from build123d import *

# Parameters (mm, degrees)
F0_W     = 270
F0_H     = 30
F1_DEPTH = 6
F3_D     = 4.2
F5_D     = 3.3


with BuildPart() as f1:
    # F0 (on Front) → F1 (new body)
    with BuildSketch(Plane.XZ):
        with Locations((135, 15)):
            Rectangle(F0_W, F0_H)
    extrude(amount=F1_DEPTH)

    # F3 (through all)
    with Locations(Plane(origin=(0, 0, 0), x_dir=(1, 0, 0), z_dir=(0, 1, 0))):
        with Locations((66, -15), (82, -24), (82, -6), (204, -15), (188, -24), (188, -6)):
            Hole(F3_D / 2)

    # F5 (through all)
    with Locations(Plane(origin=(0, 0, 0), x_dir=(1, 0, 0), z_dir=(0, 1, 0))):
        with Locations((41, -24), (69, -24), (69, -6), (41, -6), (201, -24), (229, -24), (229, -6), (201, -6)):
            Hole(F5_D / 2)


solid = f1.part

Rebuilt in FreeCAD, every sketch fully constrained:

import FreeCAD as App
import Part
import Sketcher
from FreeCAD import Vector


def add_polygon(sketch, points):
    """Adds a closed chain of lines whose ends are joined by coincident constraints."""
    first, n = sketch.GeometryCount, len(points)
    for a, b in zip(points, points[1:] + points[:1]):
        sketch.addGeometry(Part.LineSegment(App.Vector(*a, 0), App.Vector(*b, 0)), False)
    for i in range(n):
        sketch.addConstraint(Sketcher.Constraint("Coincident", first + i, 2, first + (i + 1) % n, 1))

doc = App.newDocument("Part")
body = doc.addObject("PartDesign::Body", "Body")

sketch1 = doc.addObject("Sketcher::SketchObject", "Sketch")
body.addObject(sketch1)
sketch1.AttachmentSupport = (doc.XZ_Plane, [""])
sketch1.MapMode = "FlatFace"
add_polygon(sketch1, [(0, 30), (0, 0), (270, 0), (270, 30)])
sketch1.addConstraint(Sketcher.Constraint("Vertical", 0))
sketch1.addConstraint(Sketcher.Constraint("Horizontal", 1))
sketch1.addConstraint(Sketcher.Constraint("Vertical", 2))
sketch1.addConstraint(Sketcher.Constraint("Horizontal", 3))
sketch1.addConstraint(Sketcher.Constraint("Coincident", 0, 2, -1, 1))
sketch1.addConstraint(Sketcher.Constraint("DistanceX", 1, 1, 1, 2, 270.0))
sketch1.addConstraint(Sketcher.Constraint("DistanceY", 0, 2, 0, 1, 30.0))
pad1 = doc.addObject("PartDesign::Pad", "Pad")
body.addObject(pad1)
pad1.Profile = sketch1
pad1.Length = 6

sketch2 = doc.addObject("Sketcher::SketchObject", "Sketch001")
body.addObject(sketch2)
sketch2.AttachmentSupport = (doc.XZ_Plane, [""])
sketch2.MapMode = "FlatFace"
sketch2.addGeometry(Part.Circle(Vector(66, 15, 0), Vector(0, 0, 1), 2.1), False)
sketch2.addGeometry(Part.Circle(Vector(82, 24, 0), Vector(0, 0, 1), 2.1), False)
sketch2.addGeometry(Part.Circle(Vector(82, 6, 0), Vector(0, 0, 1), 2.1), False)
sketch2.addGeometry(Part.Circle(Vector(204, 15, 0), Vector(0, 0, 1), 2.1), False)
sketch2.addGeometry(Part.Circle(Vector(188, 24, 0), Vector(0, 0, 1), 2.1), False)
sketch2.addGeometry(Part.Circle(Vector(188, 6, 0), Vector(0, 0, 1), 2.1), False)
sketch2.addConstraint(Sketcher.Constraint("Equal", 0, 1))
sketch2.addConstraint(Sketcher.Constraint("Equal", 1, 2))
sketch2.addConstraint(Sketcher.Constraint("Equal", 2, 3))
sketch2.addConstraint(Sketcher.Constraint("Equal", 3, 4))
sketch2.addConstraint(Sketcher.Constraint("Equal", 4, 5))
sketch2.addConstraint(Sketcher.Constraint("Horizontal", 0, 3, 3, 3))
sketch2.addConstraint(Sketcher.Constraint("Horizontal", 1, 3, 4, 3))
sketch2.addConstraint(Sketcher.Constraint("Horizontal", 2, 3, 5, 3))
sketch2.addConstraint(Sketcher.Constraint("Vertical", 1, 3, 2, 3))
sketch2.addConstraint(Sketcher.Constraint("Vertical", 4, 3, 5, 3))
sketch2.addConstraint(Sketcher.Constraint("Diameter", 0, 4.2))
sketch2.addConstraint(Sketcher.Constraint("DistanceX", -1, 1, 0, 3, 66.0))
sketch2.addConstraint(Sketcher.Constraint("DistanceY", -1, 1, 0, 3, 15.0))
sketch2.addConstraint(Sketcher.Constraint("DistanceX", -1, 1, 1, 3, 82.0))
sketch2.addConstraint(Sketcher.Constraint("DistanceY", -1, 1, 1, 3, 24.0))
sketch2.addConstraint(Sketcher.Constraint("DistanceY", -1, 1, 2, 3, 6.0))
sketch2.addConstraint(Sketcher.Constraint("DistanceX", -1, 1, 3, 3, 204.0))
sketch2.addConstraint(Sketcher.Constraint("DistanceX", -1, 1, 4, 3, 188.0))
doc.recompute()
hole = doc.addObject("PartDesign::Hole", "Hole")
body.addObject(hole)
hole.Profile = sketch2
hole.ThreadType = "None"
hole.Diameter = 4.2
hole.DepthType = "ThroughAll"
hole.Reversed = True

sketch3 = doc.addObject("Sketcher::SketchObject", "Sketch002")
body.addObject(sketch3)
sketch3.AttachmentSupport = (doc.XZ_Plane, [""])
sketch3.MapMode = "FlatFace"
sketch3.addGeometry(Part.Circle(Vector(41, 24, 0), Vector(0, 0, 1), 1.6), False)
sketch3.addGeometry(Part.Circle(Vector(69, 24, 0), Vector(0, 0, 1), 1.6), False)
sketch3.addGeometry(Part.Circle(Vector(69, 6, 0), Vector(0, 0, 1), 1.6), False)
sketch3.addGeometry(Part.Circle(Vector(41, 6, 0), Vector(0, 0, 1), 1.6), False)
sketch3.addGeometry(Part.Circle(Vector(201, 24, 0), Vector(0, 0, 1), 1.6), False)
sketch3.addGeometry(Part.Circle(Vector(229, 24, 0), Vector(0, 0, 1), 1.6), False)
sketch3.addGeometry(Part.Circle(Vector(229, 6, 0), Vector(0, 0, 1), 1.6), False)
sketch3.addGeometry(Part.Circle(Vector(201, 6, 0), Vector(0, 0, 1), 1.6), False)
sketch3.addConstraint(Sketcher.Constraint("Equal", 0, 1))
sketch3.addConstraint(Sketcher.Constraint("Equal", 1, 2))
sketch3.addConstraint(Sketcher.Constraint("Equal", 2, 3))
sketch3.addConstraint(Sketcher.Constraint("Equal", 3, 4))
sketch3.addConstraint(Sketcher.Constraint("Equal", 4, 5))
sketch3.addConstraint(Sketcher.Constraint("Equal", 5, 6))
sketch3.addConstraint(Sketcher.Constraint("Equal", 6, 7))
sketch3.addConstraint(Sketcher.Constraint("Horizontal", 0, 3, 1, 3))
sketch3.addConstraint(Sketcher.Constraint("Horizontal", 2, 3, 3, 3))
sketch3.addConstraint(Sketcher.Constraint("Horizontal", 1, 3, 4, 3))
sketch3.addConstraint(Sketcher.Constraint("Horizontal", 4, 3, 5, 3))
sketch3.addConstraint(Sketcher.Constraint("Horizontal", 3, 3, 6, 3))
sketch3.addConstraint(Sketcher.Constraint("Horizontal", 6, 3, 7, 3))
sketch3.addConstraint(Sketcher.Constraint("Vertical", 1, 3, 2, 3))
sketch3.addConstraint(Sketcher.Constraint("Vertical", 0, 3, 3, 3))
sketch3.addConstraint(Sketcher.Constraint("Vertical", 5, 3, 6, 3))
sketch3.addConstraint(Sketcher.Constraint("Vertical", 4, 3, 7, 3))
sketch3.addConstraint(Sketcher.Constraint("Diameter", 0, 3.3))
sketch3.addConstraint(Sketcher.Constraint("DistanceX", -1, 1, 0, 3, 41.0))
sketch3.addConstraint(Sketcher.Constraint("DistanceY", -1, 1, 0, 3, 24.0))
sketch3.addConstraint(Sketcher.Constraint("DistanceX", -1, 1, 1, 3, 69.0))
sketch3.addConstraint(Sketcher.Constraint("DistanceY", -1, 1, 2, 3, 6.0))
sketch3.addConstraint(Sketcher.Constraint("DistanceX", -1, 1, 4, 3, 201.0))
sketch3.addConstraint(Sketcher.Constraint("DistanceX", -1, 1, 5, 3, 229.0))
doc.recompute()
hole2 = doc.addObject("PartDesign::Hole", "Hole001")
body.addObject(hole2)
hole2.Profile = sketch3
hole2.ThreadType = "None"
hole2.Diameter = 3.3
hole2.DepthType = "ThroughAll"
hole2.Reversed = True

doc.recompute()
